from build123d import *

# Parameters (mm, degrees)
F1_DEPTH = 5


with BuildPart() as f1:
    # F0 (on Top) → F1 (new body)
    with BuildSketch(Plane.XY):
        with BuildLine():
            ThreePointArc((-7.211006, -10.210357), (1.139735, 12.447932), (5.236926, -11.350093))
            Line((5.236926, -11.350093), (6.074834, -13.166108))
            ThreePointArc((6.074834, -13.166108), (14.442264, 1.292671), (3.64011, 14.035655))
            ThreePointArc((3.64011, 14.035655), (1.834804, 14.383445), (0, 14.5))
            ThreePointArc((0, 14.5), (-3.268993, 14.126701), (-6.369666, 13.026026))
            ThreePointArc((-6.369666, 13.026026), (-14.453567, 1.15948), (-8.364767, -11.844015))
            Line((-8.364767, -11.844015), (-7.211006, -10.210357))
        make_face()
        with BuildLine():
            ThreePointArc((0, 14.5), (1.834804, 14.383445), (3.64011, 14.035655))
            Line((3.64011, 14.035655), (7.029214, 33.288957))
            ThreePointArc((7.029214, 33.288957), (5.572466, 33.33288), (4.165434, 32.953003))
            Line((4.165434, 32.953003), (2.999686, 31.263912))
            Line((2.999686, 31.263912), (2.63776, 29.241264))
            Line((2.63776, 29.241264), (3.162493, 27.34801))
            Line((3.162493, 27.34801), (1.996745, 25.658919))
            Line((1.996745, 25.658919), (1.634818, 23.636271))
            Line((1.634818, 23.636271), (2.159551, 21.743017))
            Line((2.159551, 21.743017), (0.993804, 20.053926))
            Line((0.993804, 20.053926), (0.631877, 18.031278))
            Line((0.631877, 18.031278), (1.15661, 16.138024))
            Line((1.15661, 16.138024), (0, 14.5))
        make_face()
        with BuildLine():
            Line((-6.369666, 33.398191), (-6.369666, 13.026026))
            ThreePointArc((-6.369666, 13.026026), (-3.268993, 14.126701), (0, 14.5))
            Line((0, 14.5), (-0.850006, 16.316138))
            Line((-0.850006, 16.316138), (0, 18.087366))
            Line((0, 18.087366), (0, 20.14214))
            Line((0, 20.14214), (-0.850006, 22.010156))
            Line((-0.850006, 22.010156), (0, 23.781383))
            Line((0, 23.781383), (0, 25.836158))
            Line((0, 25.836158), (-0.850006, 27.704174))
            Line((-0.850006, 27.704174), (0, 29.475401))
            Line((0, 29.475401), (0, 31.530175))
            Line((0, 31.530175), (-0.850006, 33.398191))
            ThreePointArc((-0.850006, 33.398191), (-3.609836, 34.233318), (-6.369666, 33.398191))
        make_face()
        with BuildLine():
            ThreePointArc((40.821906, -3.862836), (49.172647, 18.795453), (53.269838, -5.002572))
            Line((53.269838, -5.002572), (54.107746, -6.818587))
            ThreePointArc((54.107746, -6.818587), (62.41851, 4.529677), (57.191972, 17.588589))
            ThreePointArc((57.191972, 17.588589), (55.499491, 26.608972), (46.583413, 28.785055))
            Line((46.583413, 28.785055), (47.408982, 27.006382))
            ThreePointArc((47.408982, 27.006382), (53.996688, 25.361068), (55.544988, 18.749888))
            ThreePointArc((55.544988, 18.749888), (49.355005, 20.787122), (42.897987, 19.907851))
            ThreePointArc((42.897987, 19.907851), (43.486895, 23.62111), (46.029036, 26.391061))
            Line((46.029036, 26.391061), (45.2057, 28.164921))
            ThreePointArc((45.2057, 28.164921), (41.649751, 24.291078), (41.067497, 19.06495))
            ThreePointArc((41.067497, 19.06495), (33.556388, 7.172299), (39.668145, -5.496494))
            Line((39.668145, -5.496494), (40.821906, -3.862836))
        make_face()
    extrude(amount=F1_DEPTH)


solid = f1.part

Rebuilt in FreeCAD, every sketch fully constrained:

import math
import FreeCAD as App
import Part
import Sketcher
Q = App.Units.Quantity

doc = App.newDocument("Part")
body = doc.addObject("PartDesign::Body", "Body")
body.AllowCompound = True

# Sketch on XY plane
sketch1 = body.newObject("Sketcher::SketchObject", "Sketch")
sketch1.AttachmentSupport = (doc.getObject("XY_Plane"), [""])
sketch1.MapMode = "FlatFace"
sketch1.addGeometry([
    Part.ArcOfCircle(Part.Circle(App.Vector(0, 0, 0), App.Vector(0, 0, 1), 12.5), math.radians(-65.23143), math.radians(234.768569)),  # 0
    Part.LineSegment(App.Vector(5.236926, -11.350093, 0), App.Vector(6.074834, -13.166108, 0)),  # 1
    Part.ArcOfCircle(Part.Circle(App.Vector(-0.000001, 0, 0), App.Vector(0, 0, 1), 14.500001), math.radians(-65.231425), math.radians(75.460811)),  # 2
    Part.LineSegment(App.Vector(3.64011, 14.035655, 0), App.Vector(7.029214, 33.288957, 0)),  # 3
    Part.ArcOfCircle(Part.Circle(App.Vector(6.152438, 28.389013, 0), App.Vector(0, 0, 1), 4.97777), math.radians(79.855087), math.radians(113.526645)),  # 4
    Part.LineSegment(App.Vector(4.165434, 32.953003, 0), App.Vector(2.999686, 31.263912, 0)),  # 5
    Part.LineSegment(App.Vector(2.999686, 31.263912, 0), App.Vector(2.63776, 29.241264, 0)),  # 6
    Part.LineSegment(App.Vector(2.63776, 29.241264, 0), App.Vector(3.162493, 27.34801, 0)),  # 7
    Part.LineSegment(App.Vector(3.162493, 27.34801, 0), App.Vector(1.996745, 25.658919, 0)),  # 8
    Part.LineSegment(App.Vector(1.996745, 25.658919, 0), App.Vector(1.634818, 23.636271, 0)),  # 9
    Part.LineSegment(App.Vector(1.634818, 23.636271, 0), App.Vector(2.159551, 21.743017, 0)),  # 10
    Part.LineSegment(App.Vector(2.159551, 21.743017, 0), App.Vector(0.993804, 20.053926, 0)),  # 11
    Part.LineSegment(App.Vector(0.993804, 20.053926, 0), App.Vector(0.631877, 18.031278, 0)),  # 12
    Part.LineSegment(App.Vector(0.631877, 18.031278, 0), App.Vector(1.15661, 16.138024, 0)),  # 13
    Part.LineSegment(App.Vector(1.15661, 16.138024, 0), App.Vector(0, 14.5, 0)),  # 14
    Part.LineSegment(App.Vector(0, 14.5, 0), App.Vector(-0.850006, 16.316138, 0)),  # 15
    Part.LineSegment(App.Vector(-0.850006, 16.316138, 0), App.Vector(0, 18.087366, 0)),  # 16
    Part.LineSegment(App.Vector(0, 18.087366, 0), App.Vector(0, 20.14214, 0)),  # 17
    Part.LineSegment(App.Vector(0, 20.14214, 0), App.Vector(-0.850006, 22.010156, 0)),  # 18
    Part.LineSegment(App.Vector(-0.850006, 22.010156, 0), App.Vector(0, 23.781383, 0)),  # 19
    Part.LineSegment(App.Vector(0, 23.781383, 0), App.Vector(0, 25.836158, 0)),  # 20
    Part.LineSegment(App.Vector(0, 25.836158, 0), App.Vector(-0.850006, 27.704174, 0)),  # 21
    Part.LineSegment(App.Vector(-0.850006, 27.704174, 0), App.Vector(0, 29.475401, 0)),  # 22
    Part.LineSegment(App.Vector(0, 29.475401, 0), App.Vector(0, 31.530175, 0)),  # 23
    Part.LineSegment(App.Vector(0, 31.530175, 0), App.Vector(-0.850006, 33.398191, 0)),  # 24
    Part.ArcOfCircle(Part.Circle(App.Vector(-3.609836, 29.255573, 0), App.Vector(0, 0, 1), 4.977745), math.radians(56.328277), math.radians(123.671723)),  # 25
    Part.LineSegment(App.Vector(-6.369666, 33.398191, 0), App.Vector(-6.369666, 13.026026, 0)),  # 26
    Part.ArcOfCircle(Part.Circle(App.Vector(0.000001, 0, 0), App.Vector(0, 0, 1), 14.500001), math.radians(116.058421), math.radians(234.768567)),  # 27
    Part.LineSegment(App.Vector(-8.364767, -11.844015, 0), App.Vector(-7.211006, -10.210357, 0)),  # 28
    Part.ArcOfCircle(Part.Circle(App.Vector(48.032912, 6.347521, 0), App.Vector(0, 0, 1), 12.5), math.radians(-65.23143), math.radians(234.768569)),  # 29
    Part.LineSegment(App.Vector(53.269838, -5.002572, 0), App.Vector(54.107746, -6.818587, 0)),  # 30
    Part.ArcOfCircle(Part.Circle(App.Vector(48.032911, 6.347521, 0), App.Vector(0, 0, 1), 14.5), math.radians(-65.231426), math.radians(50.827347)),  # 31
    Part.ArcOfCircle(Part.Circle(App.Vector(49.355004, 20.787121, 0), App.Vector(0, 0, 1), 8.464554), math.radians(-22.202033), math.radians(109.113165)),  # 32
    Part.LineSegment(App.Vector(46.583413, 28.785055, 0), App.Vector(47.408982, 27.006382, 0)),  # 33
    Part.ArcOfCircle(Part.Circle(App.Vector(49.355005, 20.787121, 0), App.Vector(0, 0, 1), 6.51661), math.radians(-18.217294), math.radians(107.375039)),  # 34
    Part.ArcOfCircle(Part.Circle(App.Vector(48.032912, 6.347524, 0), App.Vector(0, 0, 1), 14.499997), math.radians(58.796831), math.radians(110.740306)),  # 35
    Part.ArcOfCircle(Part.Circle(App.Vector(49.355004, 20.787123, 0), App.Vector(0, 0, 1), 6.516609), math.radians(120.689363), math.radians(187.754445)),  # 36
    Part.LineSegment(App.Vector(46.029036, 26.391061, 0), App.Vector(45.2057, 28.164921, 0)),  # 37
    Part.ArcOfCircle(Part.Circle(App.Vector(49.355008, 20.78712, 0), App.Vector(0, 0, 1), 8.464556), math.radians(119.353592), math.radians(191.739166)),  # 38
    Part.ArcOfCircle(Part.Circle(App.Vector(48.032912, 6.347521, 0), App.Vector(0, 0, 1), 14.500001), math.radians(118.709796), math.radians(234.768569)),  # 39
    Part.LineSegment(App.Vector(39.668145, -5.496494, 0), App.Vector(40.821906, -3.862836, 0)),  # 40
], False)
sketch1.addConstraint([
    Sketcher.Constraint("Coincident", 0, 1, 1, 1),
    Sketcher.Constraint("Coincident", 1, 2, 2, 1),
    Sketcher.Constraint("Coincident", 2, 2, 3, 1),
    Sketcher.Constraint("Coincident", 3, 2, 4, 1),
    Sketcher.Constraint("Coincident", 4, 2, 5, 1),
    Sketcher.Constraint("Coincident", 5, 2, 6, 1),
    Sketcher.Constraint("Coincident", 6, 2, 7, 1),
    Sketcher.Constraint("Coincident", 7, 2, 8, 1),
    Sketcher.Constraint("Coincident", 8, 2, 9, 1),
    Sketcher.Constraint("Coincident", 9, 2, 10, 1),
    Sketcher.Constraint("Coincident", 10, 2, 11, 1),
    Sketcher.Constraint("Coincident", 11, 2, 12, 1),
    Sketcher.Constraint("Coincident", 12, 2, 13, 1),
    Sketcher.Constraint("Coincident", 13, 2, 14, 1),
    Sketcher.Constraint("Coincident", 14, 2, 15, 1),
    Sketcher.Constraint("Coincident", 15, 2, 16, 1),
    Sketcher.Constraint("Coincident", 16, 2, 17, 1),
    Sketcher.Constraint("Coincident", 17, 2, 18, 1),
    Sketcher.Constraint("Coincident", 18, 2, 19, 1),
    Sketcher.Constraint("Coincident", 19, 2, 20, 1),
    Sketcher.Constraint("Coincident", 20, 2, 21, 1),
    Sketcher.Constraint("Coincident", 21, 2, 22, 1),
    Sketcher.Constraint("Coincident", 22, 2, 23, 1),
    Sketcher.Constraint("Coincident", 23, 2, 24, 1),
    Sketcher.Constraint("Coincident", 24, 2, 25, 1),
    Sketcher.Constraint("Coincident", 25, 2, 26, 1),
    Sketcher.Constraint("Coincident", 26, 2, 27, 1),
    Sketcher.Constraint("Coincident", 27, 2, 28, 1),
    Sketcher.Constraint("Coincident", 28, 2, 0, 2),
    Sketcher.Constraint("Coincident", 29, 1, 30, 1),
    Sketcher.Constraint("Coincident", 30, 2, 31, 1),
    Sketcher.Constraint("Coincident", 31, 2, 32, 1),
    Sketcher.Constraint("Coincident", 32, 2, 33, 1),
    Sketcher.Constraint("Coincident", 33, 2, 34, 2),
    Sketcher.Constraint("Coincident", 34, 1, 35, 1),
    Sketcher.Constraint("Coincident", 35, 2, 36, 2),
    Sketcher.Constraint("Coincident", 36, 1, 37, 1),
    Sketcher.Constraint("Coincident", 37, 2, 38, 1),
    Sketcher.Constraint("Coincident", 38, 2, 39, 1),
    Sketcher.Constraint("Coincident", 39, 2, 40, 1),
    Sketcher.Constraint("Coincident", 40, 2, 29, 2),
    Sketcher.Constraint("Vertical", 17),
    Sketcher.Constraint("Vertical", 20),
    Sketcher.Constraint("Vertical", 23),
    Sketcher.Constraint("Vertical", 26),
    Sketcher.Constraint("Coincident", 0, 3, -1, 1),
    Sketcher.Constraint("Coincident", 2, 3, -1, 1),
    Sketcher.Constraint("Coincident", 27, 3, -1, 1),
    Sketcher.Constraint("Coincident", 31, 3, 29, 3),
    Sketcher.Constraint("Coincident", 34, 3, 32, 3),
    Sketcher.Constraint("Coincident", 35, 3, 29, 3),
    Sketcher.Constraint("Coincident", 36, 3, 32, 3),
    Sketcher.Constraint("Coincident", 38, 3, 32, 3),
    Sketcher.Constraint("Coincident", 39, 3, 29, 3),
    Sketcher.Constraint("PointOnObject", 14, 2, -2),
    Sketcher.Constraint("PointOnObject", 16, 2, -2),
    Sketcher.Constraint("PointOnObject", 19, 2, -2),
    Sketcher.Constraint("PointOnObject", 22, 2, -2),
    Sketcher.Constraint("Radius", 0, Q("12.5 mm")),
    Sketcher.Constraint("Radius", 2, Q("14.500001 mm")),
    Sketcher.Constraint("Radius", 27, Q("14.500001 mm")),
    Sketcher.Constraint("Radius", 29, Q("12.5 mm")),
    Sketcher.Constraint("Radius", 31, Q("14.5 mm")),
    Sketcher.Constraint("Radius", 39, Q("14.500001 mm")),
    Sketcher.Constraint("DistanceY", -1, 1, 14, 2, Q("14.5 mm")),
    Sketcher.Constraint("Radius", 4, Q("4.97777 mm")),
    Sketcher.Constraint("Radius", 34, Q("6.51661 mm")),
    Sketcher.Constraint("Radius", 36, Q("6.516609 mm")),
    Sketcher.Constraint("Radius", 25, Q("4.977745 mm")),
    Sketcher.Constraint("Radius", 32, Q("8.464554 mm")),
    Sketcher.Constraint("Radius", 35, Q("14.499997 mm")),
    Sketcher.Constraint("Radius", 38, Q("8.464556 mm")),
    Sketcher.Constraint("DistanceY", 21, 2, 23, 2, Q("3.826001 mm")),
    Sketcher.Constraint("DistanceY", 26, 2, 13, 2, Q("3.111998 mm")),
    Sketcher.Constraint("DistanceY", -1, 1, 22, 2, Q("29.475401 mm")),
    Sketcher.Constraint("DistanceX", -1, 1, 37, 2, Q("45.2057 mm")),
    Sketcher.Constraint("DistanceY", 29, 3, 32, 3, Q("14.4396 mm")),
    Sketcher.Constraint("DistanceY", 4, 3, 5, 2, Q("2.874899 mm")),
    Sketcher.Constraint("DistanceY", 9, 2, 25, 3, Q("5.619302 mm")),
    Sketcher.Constraint("DistanceX", 13, 2, 2, 2, Q("2.4835 mm")),
    Sketcher.Constraint("DistanceY", 13, 2, 11, 2, Q("3.915902 mm")),
    Sketcher.Constraint("DistanceY", 21, 2, 25, 3, Q("1.551399 mm")),
    Sketcher.Constraint("DistanceX", 27, 2, 1, 2, Q("14.439601 mm")),
    Sketcher.Constraint("DistanceY", 31, 2, 34, 1, Q("1.161299 mm")),
    Sketcher.Constraint("DistanceY", 36, 3, 37, 2, Q("7.377798 mm")),
    Sketcher.Constraint("DistanceX", 39, 2, 30, 2, Q("14.439601 mm")),
    Sketcher.Constraint("Distance", 14, Q("2.005211 mm")),
    Sketcher.Constraint("Distance", 15, Q("2.00521 mm")),
    Sketcher.Constraint("Distance", 33, Q("1.960929 mm")),
    Sketcher.Constraint("DistanceY", 17, 1, 17, 2, Q("2.054774 mm")),
    Sketcher.Constraint("DistanceY", 20, 1, 20, 2, Q("2.054775 mm")),
    Sketcher.Constraint("DistanceY", 23, 1, 23, 2, Q("2.054774 mm")),
    Sketcher.Constraint("DistanceY", 26, 2, 26, 1, Q("20.372165 mm")),
    Sketcher.Constraint("DistanceY", -1, 1, 29, 3, Q("6.347521 mm")),
    Sketcher.Constraint("DistanceX", -1, 1, 2, 2, Q("3.64011 mm")),
    Sketcher.Constraint("DistanceX", -1, 1, 6, 2, Q("2.63776 mm")),
    Sketcher.Constraint("DistanceY", -1, 1, 7, 2, Q("27.34801 mm")),
    Sketcher.Constraint("DistanceY", -1, 1, 8, 2, Q("25.658919 mm")),
    Sketcher.Constraint("DistanceX", -1, 1, 9, 2, Q("1.634818 mm")),
    Sketcher.Constraint("DistanceX", -1, 1, 10, 2, Q("2.159551 mm")),
    Sketcher.Constraint("DistanceY", -1, 1, 12, 2, Q("18.031278 mm")),
    Sketcher.Constraint("DistanceY", -1, 1, 17, 2, Q("20.14214 mm")),
    Sketcher.Constraint("DistanceY", -1, 1, 20, 2, Q("25.836158 mm")),
    Sketcher.Constraint("DistanceY", -1, 1, 24, 2, Q("33.398191 mm")),
    Sketcher.Constraint("DistanceY", 29, 1, -1, 1, Q("5.002572 mm")),
    Sketcher.Constraint("DistanceY", -1, 1, 33, 2, Q("27.006382 mm")),
    Sketcher.Constraint("DistanceY", -1, 1, 36, 1, Q("26.391061 mm")),
    Sketcher.Constraint("DistanceX", 2, 3, 4, 3, Q("6.152439 mm")),
    Sketcher.Constraint("DistanceY", 4, 3, 25, 3, Q("0.86656 mm")),
    Sketcher.Constraint("DistanceX", 0, 1, 4, 3, Q("0.915512 mm")),
    Sketcher.Constraint("DistanceX", 0, 1, 1, 2, Q("0.837908 mm")),
    Sketcher.Constraint("DistanceX", 25, 3, 3, 2, Q("10.63905 mm")),
    Sketcher.Constraint("DistanceX", 4, 2, 3, 2, Q("2.86378 mm")),
    Sketcher.Constraint("DistanceX", 5, 2, 4, 3, Q("3.152752 mm")),
    Sketcher.Constraint("DistanceY", 6, 2, 5, 2, Q("2.022648 mm")),
    Sketcher.Constraint("DistanceX", 7, 2, 4, 2, Q("1.002941 mm")),
    Sketcher.Constraint("DistanceX", 8, 2, 5, 2, Q("1.002941 mm")),
    Sketcher.Constraint("DistanceY", 11, 2, 10, 2, Q("1.689091 mm")),
    Sketcher.Constraint("DistanceX", 11, 2, 8, 2, Q("1.002941 mm")),
    Sketcher.Constraint("DistanceX", 12, 2, 9, 2, Q("1.002941 mm")),
    Sketcher.Constraint("DistanceY", 15, 2, 12, 2, Q("1.71514 mm")),
    Sketcher.Constraint("DistanceX", 18, 2, 11, 2, Q("1.84381 mm")),
    Sketcher.Constraint("DistanceY", 11, 2, 18, 2, Q("1.95623 mm")),
    Sketcher.Constraint("DistanceX", 25, 3, 21, 2, Q("2.75983 mm")),
    Sketcher.Constraint("DistanceX", 27, 2, 28, 2, Q("1.153761 mm")),
    Sketcher.Constraint("DistanceX", 29, 1, 30, 2, Q("0.837908 mm")),
    Sketcher.Constraint("DistanceX", 39, 2, 40, 2, Q("1.153761 mm")),
])
pad1 = body.newObject("PartDesign::Pad", "Pad")
pad1.Profile = sketch1
pad1.Length = 5

doc.recompute()
